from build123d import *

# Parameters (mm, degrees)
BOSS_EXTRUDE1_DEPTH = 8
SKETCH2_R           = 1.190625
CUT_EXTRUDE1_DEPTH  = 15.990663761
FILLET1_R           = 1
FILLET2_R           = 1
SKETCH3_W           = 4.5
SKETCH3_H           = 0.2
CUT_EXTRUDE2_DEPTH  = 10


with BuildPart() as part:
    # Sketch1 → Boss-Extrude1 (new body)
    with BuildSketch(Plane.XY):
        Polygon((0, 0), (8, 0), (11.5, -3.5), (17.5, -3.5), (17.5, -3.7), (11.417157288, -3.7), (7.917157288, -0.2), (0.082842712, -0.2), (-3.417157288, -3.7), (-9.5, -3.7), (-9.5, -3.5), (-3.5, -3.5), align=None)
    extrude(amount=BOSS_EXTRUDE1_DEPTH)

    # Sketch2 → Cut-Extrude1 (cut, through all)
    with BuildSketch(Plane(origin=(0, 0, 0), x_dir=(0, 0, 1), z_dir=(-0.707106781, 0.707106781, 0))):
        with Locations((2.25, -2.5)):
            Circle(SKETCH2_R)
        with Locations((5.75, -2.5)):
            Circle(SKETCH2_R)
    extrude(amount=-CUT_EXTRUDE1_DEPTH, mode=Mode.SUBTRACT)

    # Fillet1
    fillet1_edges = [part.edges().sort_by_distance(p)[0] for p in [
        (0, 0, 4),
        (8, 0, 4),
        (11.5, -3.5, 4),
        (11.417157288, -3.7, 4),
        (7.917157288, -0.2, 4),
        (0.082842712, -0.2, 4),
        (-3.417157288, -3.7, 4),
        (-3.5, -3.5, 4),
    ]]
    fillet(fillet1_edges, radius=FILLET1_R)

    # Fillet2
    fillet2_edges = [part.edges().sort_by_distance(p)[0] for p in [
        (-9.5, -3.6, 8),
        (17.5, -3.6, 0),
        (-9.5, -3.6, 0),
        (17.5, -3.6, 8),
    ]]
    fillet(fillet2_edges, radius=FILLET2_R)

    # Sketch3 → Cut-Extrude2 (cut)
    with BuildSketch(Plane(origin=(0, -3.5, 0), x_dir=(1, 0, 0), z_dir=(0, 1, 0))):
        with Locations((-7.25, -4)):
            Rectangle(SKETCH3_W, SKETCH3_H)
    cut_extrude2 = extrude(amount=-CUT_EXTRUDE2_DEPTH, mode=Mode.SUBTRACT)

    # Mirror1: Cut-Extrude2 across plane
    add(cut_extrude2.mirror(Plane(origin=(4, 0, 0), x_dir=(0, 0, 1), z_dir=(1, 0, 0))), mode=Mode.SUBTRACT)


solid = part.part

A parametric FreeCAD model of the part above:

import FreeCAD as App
import Part
import Sketcher
from FreeCAD import Vector


def edges_at(feature, points):
    """Names of the edges that pass closest to the given points."""
    edges = feature.Shape.Edges
    near = lambda p: min(range(len(edges)), key=lambda i: edges[i].distToShape(Part.Vertex(*p))[0])
    return sorted({f"Edge{near(p) + 1}" for p in points})


def add_polygon(sketch, points):
    """Adds a closed chain of lines whose ends are joined by coincident constraints."""
    first, n = sketch.GeometryCount, len(points)
    for a, b in zip(points, points[1:] + points[:1]):
        sketch.addGeometry(Part.LineSegment(App.Vector(*a, 0), App.Vector(*b, 0)), False)
    for i in range(n):
        sketch.addConstraint(Sketcher.Constraint("Coincident", first + i, 2, first + (i + 1) % n, 1))

doc = App.newDocument("Part")
body = doc.addObject("PartDesign::Body", "Body")

sketch1 = body.newObject("Sketcher::SketchObject", "Sketch")
sketch1.AttachmentSupport = (doc.getObject("XY_Plane"), [""])
sketch1.MapMode = "FlatFace"
add_polygon(sketch1, [(8, 0), (0, 0), (-3.5, -3.5), (-9.5, -3.5), (-9.5, -3.7), (-3.42, -3.7), (0.08, -0.2), (7.92, -0.2), (11.42, -3.7), (17.5, -3.7), (17.5, -3.5), (11.5, -3.5)])
sketch1.addConstraint([
    Sketcher.Constraint("Horizontal", 0),
    Sketcher.Constraint("Horizontal", 2),
    Sketcher.Constraint("Vertical", 3),
    Sketcher.Constraint("Horizontal", 4),
    Sketcher.Constraint("Horizontal", 6),
    Sketcher.Constraint("Horizontal", 8),
    Sketcher.Constraint("Vertical", 9),
    Sketcher.Constraint("Horizontal", 10),
    Sketcher.Constraint("Coincident", 0, 2, -1, 1),
    Sketcher.Constraint("Parallel", 1, 5),
    Sketcher.Constraint("Perpendicular", 5, 7),
    Sketcher.Constraint("Parallel", 7, 11),
    Sketcher.Constraint("Horizontal", 4, 2, 7, 2),
    Sketcher.Constraint("Horizontal", 2, 2, 9, 2),
    Sketcher.Constraint("Equal", 4, 8),
    Sketcher.Constraint("Equal", 2, 10),
    Sketcher.Constraint("Equal", 1, 5),
    Sketcher.Constraint("Equal", 5, 7),
    Sketcher.Constraint("DistanceX", 0, 2, 0, 1, 8.0),
    Sketcher.Constraint("DistanceX", 2, 2, 2, 1, 6.0),
    Sketcher.Constraint("DistanceY", 3, 2, 3, 1, 0.2),
    Sketcher.Constraint("DistanceX", 1, 2, -1, 1, 3.5),
    Sketcher.Constraint("DistanceX", 4, 1, 4, 2, 6.082843),
])
pad1 = body.newObject("PartDesign::Pad", "Pad")
pad1.Profile = sketch1
pad1.Length = 8

sketch2 = body.newObject("Sketcher::SketchObject", "Sketch001")
sketch2.Placement = App.Placement(Vector(0, 0, 0), App.Rotation(Vector(0, 0, 1), Vector(0.707106781, 0.707106781, 0), Vector(-0.707106781, 0.707106781, 0), "ZXY"))
sketch2.addGeometry([
    Part.Circle(Vector(2.2, -2.5, 0), Vector(0, 0, 1), 1.2),
    Part.Circle(Vector(5.8, -2.5, 0), Vector(0, 0, 1), 1.2),
], False)
sketch2.addConstraint([
    Sketcher.Constraint("Equal", 0, 1),
    Sketcher.Constraint("Horizontal", 0, 3, 1, 3),
    Sketcher.Constraint("DistanceY", 0, 3, -1, 1, 2.5),
    Sketcher.Constraint("DistanceX", 0, 3, 1, 3, 3.5),
    Sketcher.Constraint("Diameter", 0, 2.38125),
    Sketcher.Constraint("DistanceX", -1, 1, 0, 3, 2.25),
])
pocket1 = body.newObject("PartDesign::Pocket", "Pocket")
pocket1.Profile = sketch2
pocket1.Type = "ThroughAll"
doc.recompute()

fillet = body.newObject("PartDesign::Fillet", "Fillet")
fillet.Base = (pocket1, edges_at(pocket1, [
    (0, 0, 4),
    (8, 0, 4),
    (11.5, -3.5, 4),
    (11.417, -3.7, 4),
    (7.917, -0.2, 4),
    (0.083, -0.2, 4),
    (-3.417, -3.7, 4),
    (-3.5, -3.5, 4),
]))
fillet.Radius = 1
doc.recompute()

fillet2 = body.newObject("PartDesign::Fillet", "Fillet001")
fillet2.Base = (fillet, edges_at(fillet, [
    (-9.5, -3.6, 8),
    (17.5, -3.6, 0),
    (-9.5, -3.6, 0),
    (17.5, -3.6, 8),
]))
fillet2.Radius = 1

sketch3 = body.newObject("Sketcher::SketchObject", "Sketch002")
sketch3.AttachmentSupport = (doc.getObject("XZ_Plane"), [""])
sketch3.MapMode = "FlatFace"
sketch3.AttachmentOffset = App.Placement(Vector(0, 0, 3.5), App.Rotation())
add_polygon(sketch3, [(-9.5, 3.9), (-9.5, 4.1), (-5, 4.1), (-5, 3.9)])
sketch3.addConstraint([
    Sketcher.Constraint("Vertical", 0),
    Sketcher.Constraint("Horizontal", 1),
    Sketcher.Constraint("Vertical", 2),
    Sketcher.Constraint("Horizontal", 3),
    Sketcher.Constraint("DistanceX", 1, 1, 1, 2, 4.5),
    Sketcher.Constraint("DistanceY", 0, 1, 0, 2, 0.2),
    Sketcher.Constraint("DistanceX", 1, 2, -1, 1, 5.0),
    Sketcher.Constraint("DistanceY", -1, 1, 0, 2, 4.1),
])
pocket2 = body.newObject("PartDesign::Pocket", "Pocket001")
pocket2.Profile = sketch3
pocket2.Length = 10
pocket2.Reversed = True
doc.recompute()

datumplane = body.newObject("PartDesign::Plane", "DatumPlane")
datumplane.AttachmentSupport = (doc.getObject("YZ_Plane"), [""])
datumplane.MapMode = "FlatFace"
datumplane.AttachmentOffset = App.Placement(Vector(0, 0, 4), App.Rotation())
mirrored = body.newObject("PartDesign::Mirrored", "Mirrored")
mirrored.Originals = [pocket2]
mirrored.MirrorPlane = (datumplane, [""])
body.Tip = mirrored

doc.recompute()
